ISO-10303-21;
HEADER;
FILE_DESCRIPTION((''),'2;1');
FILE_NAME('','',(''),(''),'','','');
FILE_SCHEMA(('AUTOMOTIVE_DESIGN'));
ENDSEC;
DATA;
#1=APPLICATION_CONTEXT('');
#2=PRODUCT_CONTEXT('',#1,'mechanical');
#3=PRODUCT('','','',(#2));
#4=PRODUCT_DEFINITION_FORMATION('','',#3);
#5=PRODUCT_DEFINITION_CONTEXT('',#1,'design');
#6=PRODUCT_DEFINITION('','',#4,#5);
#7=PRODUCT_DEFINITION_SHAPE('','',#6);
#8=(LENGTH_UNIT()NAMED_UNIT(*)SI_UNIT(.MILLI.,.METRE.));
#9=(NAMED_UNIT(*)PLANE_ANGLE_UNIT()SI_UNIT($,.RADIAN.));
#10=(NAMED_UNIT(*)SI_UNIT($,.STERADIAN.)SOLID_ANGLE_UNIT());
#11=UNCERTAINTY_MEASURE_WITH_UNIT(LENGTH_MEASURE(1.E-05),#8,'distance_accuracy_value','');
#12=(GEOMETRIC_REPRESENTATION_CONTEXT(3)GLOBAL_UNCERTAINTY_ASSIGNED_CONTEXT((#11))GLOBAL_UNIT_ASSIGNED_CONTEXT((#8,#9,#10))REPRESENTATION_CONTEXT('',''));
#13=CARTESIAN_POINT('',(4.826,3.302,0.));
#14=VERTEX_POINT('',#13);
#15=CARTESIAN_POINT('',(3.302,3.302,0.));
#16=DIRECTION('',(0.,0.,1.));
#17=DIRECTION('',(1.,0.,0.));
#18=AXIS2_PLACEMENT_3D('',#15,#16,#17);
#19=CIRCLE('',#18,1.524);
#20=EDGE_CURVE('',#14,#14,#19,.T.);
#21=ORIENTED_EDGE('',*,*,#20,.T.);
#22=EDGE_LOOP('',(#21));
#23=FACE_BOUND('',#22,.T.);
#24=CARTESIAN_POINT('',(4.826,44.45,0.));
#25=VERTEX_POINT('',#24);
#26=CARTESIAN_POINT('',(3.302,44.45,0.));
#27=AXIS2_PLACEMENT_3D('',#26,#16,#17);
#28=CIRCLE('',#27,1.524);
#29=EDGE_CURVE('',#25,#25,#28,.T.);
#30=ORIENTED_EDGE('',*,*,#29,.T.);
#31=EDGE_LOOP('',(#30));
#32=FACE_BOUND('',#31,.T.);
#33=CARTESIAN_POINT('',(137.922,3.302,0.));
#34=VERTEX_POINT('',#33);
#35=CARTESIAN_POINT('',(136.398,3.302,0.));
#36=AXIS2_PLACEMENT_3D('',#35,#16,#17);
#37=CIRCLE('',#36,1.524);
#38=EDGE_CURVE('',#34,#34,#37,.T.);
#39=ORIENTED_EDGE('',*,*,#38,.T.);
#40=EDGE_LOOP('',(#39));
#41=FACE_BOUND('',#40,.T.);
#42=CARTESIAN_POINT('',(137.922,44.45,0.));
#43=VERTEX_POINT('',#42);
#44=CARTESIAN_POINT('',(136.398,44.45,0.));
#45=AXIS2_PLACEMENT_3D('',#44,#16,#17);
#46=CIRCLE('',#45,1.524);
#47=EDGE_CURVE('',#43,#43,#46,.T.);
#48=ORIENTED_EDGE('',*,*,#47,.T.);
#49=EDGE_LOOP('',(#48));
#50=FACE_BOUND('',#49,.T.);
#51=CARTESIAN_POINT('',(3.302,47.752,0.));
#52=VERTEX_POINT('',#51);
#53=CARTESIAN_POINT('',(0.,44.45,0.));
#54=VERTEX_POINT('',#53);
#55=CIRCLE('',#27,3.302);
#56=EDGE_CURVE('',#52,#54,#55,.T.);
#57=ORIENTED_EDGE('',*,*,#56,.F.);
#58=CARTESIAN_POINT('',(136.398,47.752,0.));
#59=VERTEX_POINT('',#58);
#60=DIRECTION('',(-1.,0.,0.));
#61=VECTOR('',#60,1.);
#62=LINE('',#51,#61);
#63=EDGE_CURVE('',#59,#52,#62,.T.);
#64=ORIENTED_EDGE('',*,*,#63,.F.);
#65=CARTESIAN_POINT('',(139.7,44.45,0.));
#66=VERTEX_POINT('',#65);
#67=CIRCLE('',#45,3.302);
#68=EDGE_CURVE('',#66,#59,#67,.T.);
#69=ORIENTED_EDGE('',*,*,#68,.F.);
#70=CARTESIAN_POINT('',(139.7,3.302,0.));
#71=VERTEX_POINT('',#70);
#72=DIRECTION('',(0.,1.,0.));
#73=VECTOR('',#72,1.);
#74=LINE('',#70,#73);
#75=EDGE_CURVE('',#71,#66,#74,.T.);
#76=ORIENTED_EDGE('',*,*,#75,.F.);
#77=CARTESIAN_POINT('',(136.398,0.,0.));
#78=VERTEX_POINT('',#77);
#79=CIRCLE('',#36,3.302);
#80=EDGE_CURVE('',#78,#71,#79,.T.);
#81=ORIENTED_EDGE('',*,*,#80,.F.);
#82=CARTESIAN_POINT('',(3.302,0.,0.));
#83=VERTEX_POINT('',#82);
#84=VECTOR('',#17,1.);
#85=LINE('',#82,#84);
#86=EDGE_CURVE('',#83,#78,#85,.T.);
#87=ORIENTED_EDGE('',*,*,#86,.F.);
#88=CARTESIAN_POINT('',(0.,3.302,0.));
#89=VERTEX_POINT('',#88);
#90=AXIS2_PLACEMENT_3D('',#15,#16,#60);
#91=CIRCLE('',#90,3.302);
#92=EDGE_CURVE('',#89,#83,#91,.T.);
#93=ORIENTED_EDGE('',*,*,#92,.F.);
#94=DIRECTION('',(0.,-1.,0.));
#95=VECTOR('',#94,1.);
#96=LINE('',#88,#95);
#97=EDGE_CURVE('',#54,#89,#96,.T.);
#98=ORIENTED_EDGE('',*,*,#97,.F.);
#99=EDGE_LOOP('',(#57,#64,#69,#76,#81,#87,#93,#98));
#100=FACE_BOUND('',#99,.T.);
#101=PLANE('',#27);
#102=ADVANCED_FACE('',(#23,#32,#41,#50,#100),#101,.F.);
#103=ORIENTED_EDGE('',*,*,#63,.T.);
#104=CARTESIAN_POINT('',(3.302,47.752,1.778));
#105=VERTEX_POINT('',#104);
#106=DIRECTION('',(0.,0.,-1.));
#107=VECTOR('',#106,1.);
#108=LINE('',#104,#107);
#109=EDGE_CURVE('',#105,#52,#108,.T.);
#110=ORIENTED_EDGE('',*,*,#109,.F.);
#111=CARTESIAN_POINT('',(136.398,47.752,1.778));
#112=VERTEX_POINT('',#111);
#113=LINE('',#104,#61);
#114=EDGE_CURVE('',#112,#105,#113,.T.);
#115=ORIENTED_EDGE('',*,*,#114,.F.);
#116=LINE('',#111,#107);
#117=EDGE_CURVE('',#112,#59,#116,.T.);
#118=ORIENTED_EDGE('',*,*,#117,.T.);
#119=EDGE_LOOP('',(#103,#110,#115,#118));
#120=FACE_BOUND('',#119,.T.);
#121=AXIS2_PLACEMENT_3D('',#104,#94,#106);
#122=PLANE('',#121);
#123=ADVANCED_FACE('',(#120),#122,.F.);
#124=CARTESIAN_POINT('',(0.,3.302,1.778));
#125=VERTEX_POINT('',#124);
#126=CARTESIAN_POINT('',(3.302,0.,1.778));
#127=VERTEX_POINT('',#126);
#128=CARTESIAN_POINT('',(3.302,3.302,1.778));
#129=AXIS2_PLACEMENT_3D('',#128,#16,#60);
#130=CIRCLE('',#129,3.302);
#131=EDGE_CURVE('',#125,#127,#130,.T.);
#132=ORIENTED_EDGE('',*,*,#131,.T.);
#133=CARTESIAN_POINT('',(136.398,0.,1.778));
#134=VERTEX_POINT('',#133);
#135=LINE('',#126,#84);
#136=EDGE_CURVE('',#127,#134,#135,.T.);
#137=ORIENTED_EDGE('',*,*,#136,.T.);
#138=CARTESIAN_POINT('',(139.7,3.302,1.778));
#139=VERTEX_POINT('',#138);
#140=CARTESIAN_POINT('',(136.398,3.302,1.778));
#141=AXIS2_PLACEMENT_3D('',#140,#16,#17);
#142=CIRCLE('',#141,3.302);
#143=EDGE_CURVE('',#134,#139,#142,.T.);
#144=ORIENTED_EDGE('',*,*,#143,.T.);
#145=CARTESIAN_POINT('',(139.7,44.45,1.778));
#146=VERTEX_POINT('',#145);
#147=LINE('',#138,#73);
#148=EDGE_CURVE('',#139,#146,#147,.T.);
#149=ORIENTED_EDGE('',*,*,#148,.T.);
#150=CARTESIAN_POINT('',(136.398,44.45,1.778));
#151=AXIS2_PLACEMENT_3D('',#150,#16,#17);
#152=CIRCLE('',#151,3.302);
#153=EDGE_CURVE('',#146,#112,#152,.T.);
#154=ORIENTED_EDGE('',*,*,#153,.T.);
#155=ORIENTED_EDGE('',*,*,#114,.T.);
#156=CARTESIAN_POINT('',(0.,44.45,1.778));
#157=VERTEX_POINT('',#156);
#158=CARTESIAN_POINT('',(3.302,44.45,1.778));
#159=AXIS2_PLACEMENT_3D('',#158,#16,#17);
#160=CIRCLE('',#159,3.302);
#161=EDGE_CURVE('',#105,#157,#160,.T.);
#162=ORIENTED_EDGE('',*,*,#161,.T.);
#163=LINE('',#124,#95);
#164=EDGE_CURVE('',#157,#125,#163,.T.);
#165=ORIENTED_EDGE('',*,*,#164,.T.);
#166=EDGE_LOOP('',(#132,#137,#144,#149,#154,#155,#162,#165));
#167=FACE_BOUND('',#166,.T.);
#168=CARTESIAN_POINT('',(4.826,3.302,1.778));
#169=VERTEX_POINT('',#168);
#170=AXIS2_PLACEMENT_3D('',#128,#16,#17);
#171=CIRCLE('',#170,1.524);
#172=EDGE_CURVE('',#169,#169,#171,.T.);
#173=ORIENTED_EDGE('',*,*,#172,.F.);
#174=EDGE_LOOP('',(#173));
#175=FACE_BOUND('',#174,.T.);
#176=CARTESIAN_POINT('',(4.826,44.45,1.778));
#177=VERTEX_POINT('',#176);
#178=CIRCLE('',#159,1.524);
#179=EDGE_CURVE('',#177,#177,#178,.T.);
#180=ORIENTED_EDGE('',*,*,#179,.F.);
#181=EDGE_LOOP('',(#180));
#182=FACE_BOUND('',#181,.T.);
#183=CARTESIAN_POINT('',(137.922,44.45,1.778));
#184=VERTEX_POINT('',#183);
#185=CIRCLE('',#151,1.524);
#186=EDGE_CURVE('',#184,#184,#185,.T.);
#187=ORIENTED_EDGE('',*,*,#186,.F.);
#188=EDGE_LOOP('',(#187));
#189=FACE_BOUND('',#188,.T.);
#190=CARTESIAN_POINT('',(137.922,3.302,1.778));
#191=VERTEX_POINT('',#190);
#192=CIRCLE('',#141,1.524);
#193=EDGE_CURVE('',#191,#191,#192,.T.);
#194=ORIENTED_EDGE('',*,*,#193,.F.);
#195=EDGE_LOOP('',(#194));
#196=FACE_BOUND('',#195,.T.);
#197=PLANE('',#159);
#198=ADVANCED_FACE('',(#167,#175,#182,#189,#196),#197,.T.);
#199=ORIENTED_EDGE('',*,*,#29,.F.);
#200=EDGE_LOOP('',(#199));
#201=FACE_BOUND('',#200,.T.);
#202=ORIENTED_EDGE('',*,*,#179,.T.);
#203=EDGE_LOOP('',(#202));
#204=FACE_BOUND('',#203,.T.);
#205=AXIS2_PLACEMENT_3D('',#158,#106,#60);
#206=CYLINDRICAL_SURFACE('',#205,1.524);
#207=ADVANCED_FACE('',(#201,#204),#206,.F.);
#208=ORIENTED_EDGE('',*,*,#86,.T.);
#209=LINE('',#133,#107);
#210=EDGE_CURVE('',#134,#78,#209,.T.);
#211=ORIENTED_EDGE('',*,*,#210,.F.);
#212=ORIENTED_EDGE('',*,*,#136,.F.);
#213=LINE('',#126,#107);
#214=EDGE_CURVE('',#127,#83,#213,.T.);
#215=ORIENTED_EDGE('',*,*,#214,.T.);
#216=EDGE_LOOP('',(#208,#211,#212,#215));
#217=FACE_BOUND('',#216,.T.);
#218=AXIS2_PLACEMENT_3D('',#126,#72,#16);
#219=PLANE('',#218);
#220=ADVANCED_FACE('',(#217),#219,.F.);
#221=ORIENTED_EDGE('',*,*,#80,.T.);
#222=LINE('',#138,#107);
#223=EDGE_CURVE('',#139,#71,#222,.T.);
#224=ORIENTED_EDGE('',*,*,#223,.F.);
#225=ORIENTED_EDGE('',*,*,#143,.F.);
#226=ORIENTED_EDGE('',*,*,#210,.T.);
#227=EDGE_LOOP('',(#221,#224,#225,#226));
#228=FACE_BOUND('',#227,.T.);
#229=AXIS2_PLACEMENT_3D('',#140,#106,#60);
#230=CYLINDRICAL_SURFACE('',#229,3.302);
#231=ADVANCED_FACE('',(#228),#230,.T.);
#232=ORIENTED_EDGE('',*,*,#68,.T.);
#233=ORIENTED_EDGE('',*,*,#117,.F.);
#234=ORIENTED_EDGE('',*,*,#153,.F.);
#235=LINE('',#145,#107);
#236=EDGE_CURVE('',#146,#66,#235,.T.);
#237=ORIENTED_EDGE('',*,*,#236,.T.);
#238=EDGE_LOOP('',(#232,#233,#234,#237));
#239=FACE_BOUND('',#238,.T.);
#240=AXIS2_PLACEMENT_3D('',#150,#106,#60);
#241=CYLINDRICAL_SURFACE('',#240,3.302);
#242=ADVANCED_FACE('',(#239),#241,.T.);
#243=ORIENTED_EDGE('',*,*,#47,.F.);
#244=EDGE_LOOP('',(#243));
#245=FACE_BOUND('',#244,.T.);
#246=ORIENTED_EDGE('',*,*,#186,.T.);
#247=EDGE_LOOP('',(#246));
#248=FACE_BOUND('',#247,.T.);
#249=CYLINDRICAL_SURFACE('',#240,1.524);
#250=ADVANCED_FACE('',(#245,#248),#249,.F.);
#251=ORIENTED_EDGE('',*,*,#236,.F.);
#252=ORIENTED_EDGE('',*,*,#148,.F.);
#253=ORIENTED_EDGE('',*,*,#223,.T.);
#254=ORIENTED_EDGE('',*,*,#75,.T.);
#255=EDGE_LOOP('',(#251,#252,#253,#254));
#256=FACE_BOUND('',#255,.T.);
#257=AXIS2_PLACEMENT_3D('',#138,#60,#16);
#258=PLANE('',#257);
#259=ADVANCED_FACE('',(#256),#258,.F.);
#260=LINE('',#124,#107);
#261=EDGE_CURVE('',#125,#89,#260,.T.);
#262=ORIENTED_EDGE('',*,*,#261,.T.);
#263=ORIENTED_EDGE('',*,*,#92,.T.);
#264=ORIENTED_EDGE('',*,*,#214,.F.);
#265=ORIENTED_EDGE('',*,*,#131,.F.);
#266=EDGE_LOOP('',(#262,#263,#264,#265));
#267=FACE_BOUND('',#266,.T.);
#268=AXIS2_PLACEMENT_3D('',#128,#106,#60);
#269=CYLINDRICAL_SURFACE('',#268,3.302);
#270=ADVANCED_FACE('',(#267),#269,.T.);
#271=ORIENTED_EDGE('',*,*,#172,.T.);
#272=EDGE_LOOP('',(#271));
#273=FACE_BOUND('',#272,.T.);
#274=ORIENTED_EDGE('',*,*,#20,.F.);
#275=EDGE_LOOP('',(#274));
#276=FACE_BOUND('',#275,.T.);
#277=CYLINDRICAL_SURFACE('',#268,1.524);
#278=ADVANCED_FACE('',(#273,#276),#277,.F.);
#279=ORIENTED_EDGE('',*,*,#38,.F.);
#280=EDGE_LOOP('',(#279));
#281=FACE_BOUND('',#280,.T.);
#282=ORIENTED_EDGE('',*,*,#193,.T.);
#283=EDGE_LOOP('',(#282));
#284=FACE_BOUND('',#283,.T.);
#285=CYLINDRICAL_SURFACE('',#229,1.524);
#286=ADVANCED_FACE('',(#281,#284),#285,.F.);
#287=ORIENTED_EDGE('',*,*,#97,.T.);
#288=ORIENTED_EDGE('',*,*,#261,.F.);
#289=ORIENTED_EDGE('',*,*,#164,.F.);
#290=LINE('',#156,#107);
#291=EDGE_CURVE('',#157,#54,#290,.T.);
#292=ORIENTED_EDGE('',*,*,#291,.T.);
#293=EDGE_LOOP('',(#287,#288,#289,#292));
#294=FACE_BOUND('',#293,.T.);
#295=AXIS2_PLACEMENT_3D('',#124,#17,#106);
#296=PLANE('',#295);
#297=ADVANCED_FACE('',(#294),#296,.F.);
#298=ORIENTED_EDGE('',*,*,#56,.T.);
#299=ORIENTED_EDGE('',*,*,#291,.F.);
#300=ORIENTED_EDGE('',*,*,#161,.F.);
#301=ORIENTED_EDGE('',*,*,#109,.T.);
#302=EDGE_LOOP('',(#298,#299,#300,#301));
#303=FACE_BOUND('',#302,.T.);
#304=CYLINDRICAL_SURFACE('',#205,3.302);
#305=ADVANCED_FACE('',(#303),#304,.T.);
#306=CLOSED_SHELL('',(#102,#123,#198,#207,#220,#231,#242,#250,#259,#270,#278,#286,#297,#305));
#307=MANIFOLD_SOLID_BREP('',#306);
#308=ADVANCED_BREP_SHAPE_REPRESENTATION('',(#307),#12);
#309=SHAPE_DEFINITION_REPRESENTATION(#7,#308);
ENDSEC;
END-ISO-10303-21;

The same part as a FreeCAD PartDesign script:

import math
import FreeCAD as App
import Part
import Sketcher
Q = App.Units.Quantity

doc = App.newDocument("Part")
body = doc.addObject("PartDesign::Body", "Body")

sketch1 = body.newObject("Sketcher::SketchObject", "Sketch")
sketch1.AttachmentSupport = (doc.getObject("XY_Plane"), [""])
sketch1.MapMode = "FlatFace"
sketch1.addGeometry(Part.LineSegment(App.Vector(3.3, 0, 0), App.Vector(136.4, 0, 0)), False)
sketch1.addGeometry(Part.ArcOfCircle(Part.Circle(App.Vector(136.4, 3.3, 0), App.Vector(0, 0, 1), 3.3), math.radians(-90), math.radians(0)), False)
sketch1.addGeometry(Part.LineSegment(App.Vector(139.7, 3.3, 0), App.Vector(139.7, 44.5, 0)), False)
sketch1.addGeometry(Part.ArcOfCircle(Part.Circle(App.Vector(136.4, 44.4, 0), App.Vector(0, 0, 1), 3.3), math.radians(0), math.radians(90)), False)
sketch1.addGeometry(Part.LineSegment(App.Vector(136.4, 47.8, 0), App.Vector(3.3, 47.8, 0)), False)
sketch1.addGeometry(Part.ArcOfCircle(Part.Circle(App.Vector(3.3, 44.4, 0), App.Vector(0, 0, 1), 3.3), math.radians(90), math.radians(180)), False)
sketch1.addGeometry(Part.LineSegment(App.Vector(0, 44.5, 0), App.Vector(0, 3.3, 0)), False)
sketch1.addGeometry(Part.ArcOfCircle(Part.Circle(App.Vector(3.3, 3.3, 0), App.Vector(0, 0, 1), 3.3), math.radians(-180), math.radians(-90)), False)
sketch1.addGeometry(Part.Circle(App.Vector(3.3, 3.3, 0), App.Vector(0, 0, 1), 1.5), False)
sketch1.addGeometry(Part.Circle(App.Vector(136.4, 3.3, 0), App.Vector(0, 0, 1), 1.5), False)
sketch1.addGeometry(Part.Circle(App.Vector(3.3, 44.5, 0), App.Vector(0, 0, 1), 1.5), False)
sketch1.addGeometry(Part.Circle(App.Vector(136.4, 44.5, 0), App.Vector(0, 0, 1), 1.5), False)
sketch1.addConstraint(Sketcher.Constraint("Tangent", 0, 2, 1, 1))
sketch1.addConstraint(Sketcher.Constraint("Tangent", 1, 2, 2, 1))
sketch1.addConstraint(Sketcher.Constraint("Tangent", 2, 2, 3, 1))
sketch1.addConstraint(Sketcher.Constraint("Tangent", 3, 2, 4, 1))
sketch1.addConstraint(Sketcher.Constraint("Tangent", 4, 2, 5, 1))
sketch1.addConstraint(Sketcher.Constraint("Tangent", 5, 2, 6, 1))
sketch1.addConstraint(Sketcher.Constraint("Tangent", 6, 2, 7, 1))
sketch1.addConstraint(Sketcher.Constraint("Tangent", 7, 2, 0, 1))
sketch1.addConstraint(Sketcher.Constraint("Horizontal", 0))
sketch1.addConstraint(Sketcher.Constraint("Vertical", 2))
sketch1.addConstraint(Sketcher.Constraint("Horizontal", 4))
sketch1.addConstraint(Sketcher.Constraint("Vertical", 6))
sketch1.addConstraint(Sketcher.Constraint("Coincident", 8, 3, 7, 3))
sketch1.addConstraint(Sketcher.Constraint("Coincident", 9, 3, 1, 3))
sketch1.addConstraint(Sketcher.Constraint("Coincident", 10, 3, 5, 3))
sketch1.addConstraint(Sketcher.Constraint("Coincident", 11, 3, 3, 3))
sketch1.addConstraint(Sketcher.Constraint("Equal", 1, 3))
sketch1.addConstraint(Sketcher.Constraint("Equal", 3, 5))
sketch1.addConstraint(Sketcher.Constraint("Equal", 5, 7))
sketch1.addConstraint(Sketcher.Constraint("Equal", 8, 9))
sketch1.addConstraint(Sketcher.Constraint("Equal", 9, 10))
sketch1.addConstraint(Sketcher.Constraint("Equal", 10, 11))
sketch1.addConstraint(Sketcher.Constraint("PointOnObject", 0, 2, -1))
sketch1.addConstraint(Sketcher.Constraint("PointOnObject", 5, 2, -2))
sketch1.addConstraint(Sketcher.Constraint("Diameter", 8, Q("0.12 in")))
sketch1.addConstraint(Sketcher.Constraint("Radius", 1, Q("0.13 in")))
sketch1.addConstraint(Sketcher.Constraint("DistanceX", 0, 1, 0, 2, Q("5.24 in")))
sketch1.addConstraint(Sketcher.Constraint("DistanceY", 2, 1, 2, 2, Q("1.62 in")))
pad1 = body.newObject("PartDesign::Pad", "Pad")
pad1.Profile = sketch1
pad1.Length = Q("0.07 in")

doc.recompute()
